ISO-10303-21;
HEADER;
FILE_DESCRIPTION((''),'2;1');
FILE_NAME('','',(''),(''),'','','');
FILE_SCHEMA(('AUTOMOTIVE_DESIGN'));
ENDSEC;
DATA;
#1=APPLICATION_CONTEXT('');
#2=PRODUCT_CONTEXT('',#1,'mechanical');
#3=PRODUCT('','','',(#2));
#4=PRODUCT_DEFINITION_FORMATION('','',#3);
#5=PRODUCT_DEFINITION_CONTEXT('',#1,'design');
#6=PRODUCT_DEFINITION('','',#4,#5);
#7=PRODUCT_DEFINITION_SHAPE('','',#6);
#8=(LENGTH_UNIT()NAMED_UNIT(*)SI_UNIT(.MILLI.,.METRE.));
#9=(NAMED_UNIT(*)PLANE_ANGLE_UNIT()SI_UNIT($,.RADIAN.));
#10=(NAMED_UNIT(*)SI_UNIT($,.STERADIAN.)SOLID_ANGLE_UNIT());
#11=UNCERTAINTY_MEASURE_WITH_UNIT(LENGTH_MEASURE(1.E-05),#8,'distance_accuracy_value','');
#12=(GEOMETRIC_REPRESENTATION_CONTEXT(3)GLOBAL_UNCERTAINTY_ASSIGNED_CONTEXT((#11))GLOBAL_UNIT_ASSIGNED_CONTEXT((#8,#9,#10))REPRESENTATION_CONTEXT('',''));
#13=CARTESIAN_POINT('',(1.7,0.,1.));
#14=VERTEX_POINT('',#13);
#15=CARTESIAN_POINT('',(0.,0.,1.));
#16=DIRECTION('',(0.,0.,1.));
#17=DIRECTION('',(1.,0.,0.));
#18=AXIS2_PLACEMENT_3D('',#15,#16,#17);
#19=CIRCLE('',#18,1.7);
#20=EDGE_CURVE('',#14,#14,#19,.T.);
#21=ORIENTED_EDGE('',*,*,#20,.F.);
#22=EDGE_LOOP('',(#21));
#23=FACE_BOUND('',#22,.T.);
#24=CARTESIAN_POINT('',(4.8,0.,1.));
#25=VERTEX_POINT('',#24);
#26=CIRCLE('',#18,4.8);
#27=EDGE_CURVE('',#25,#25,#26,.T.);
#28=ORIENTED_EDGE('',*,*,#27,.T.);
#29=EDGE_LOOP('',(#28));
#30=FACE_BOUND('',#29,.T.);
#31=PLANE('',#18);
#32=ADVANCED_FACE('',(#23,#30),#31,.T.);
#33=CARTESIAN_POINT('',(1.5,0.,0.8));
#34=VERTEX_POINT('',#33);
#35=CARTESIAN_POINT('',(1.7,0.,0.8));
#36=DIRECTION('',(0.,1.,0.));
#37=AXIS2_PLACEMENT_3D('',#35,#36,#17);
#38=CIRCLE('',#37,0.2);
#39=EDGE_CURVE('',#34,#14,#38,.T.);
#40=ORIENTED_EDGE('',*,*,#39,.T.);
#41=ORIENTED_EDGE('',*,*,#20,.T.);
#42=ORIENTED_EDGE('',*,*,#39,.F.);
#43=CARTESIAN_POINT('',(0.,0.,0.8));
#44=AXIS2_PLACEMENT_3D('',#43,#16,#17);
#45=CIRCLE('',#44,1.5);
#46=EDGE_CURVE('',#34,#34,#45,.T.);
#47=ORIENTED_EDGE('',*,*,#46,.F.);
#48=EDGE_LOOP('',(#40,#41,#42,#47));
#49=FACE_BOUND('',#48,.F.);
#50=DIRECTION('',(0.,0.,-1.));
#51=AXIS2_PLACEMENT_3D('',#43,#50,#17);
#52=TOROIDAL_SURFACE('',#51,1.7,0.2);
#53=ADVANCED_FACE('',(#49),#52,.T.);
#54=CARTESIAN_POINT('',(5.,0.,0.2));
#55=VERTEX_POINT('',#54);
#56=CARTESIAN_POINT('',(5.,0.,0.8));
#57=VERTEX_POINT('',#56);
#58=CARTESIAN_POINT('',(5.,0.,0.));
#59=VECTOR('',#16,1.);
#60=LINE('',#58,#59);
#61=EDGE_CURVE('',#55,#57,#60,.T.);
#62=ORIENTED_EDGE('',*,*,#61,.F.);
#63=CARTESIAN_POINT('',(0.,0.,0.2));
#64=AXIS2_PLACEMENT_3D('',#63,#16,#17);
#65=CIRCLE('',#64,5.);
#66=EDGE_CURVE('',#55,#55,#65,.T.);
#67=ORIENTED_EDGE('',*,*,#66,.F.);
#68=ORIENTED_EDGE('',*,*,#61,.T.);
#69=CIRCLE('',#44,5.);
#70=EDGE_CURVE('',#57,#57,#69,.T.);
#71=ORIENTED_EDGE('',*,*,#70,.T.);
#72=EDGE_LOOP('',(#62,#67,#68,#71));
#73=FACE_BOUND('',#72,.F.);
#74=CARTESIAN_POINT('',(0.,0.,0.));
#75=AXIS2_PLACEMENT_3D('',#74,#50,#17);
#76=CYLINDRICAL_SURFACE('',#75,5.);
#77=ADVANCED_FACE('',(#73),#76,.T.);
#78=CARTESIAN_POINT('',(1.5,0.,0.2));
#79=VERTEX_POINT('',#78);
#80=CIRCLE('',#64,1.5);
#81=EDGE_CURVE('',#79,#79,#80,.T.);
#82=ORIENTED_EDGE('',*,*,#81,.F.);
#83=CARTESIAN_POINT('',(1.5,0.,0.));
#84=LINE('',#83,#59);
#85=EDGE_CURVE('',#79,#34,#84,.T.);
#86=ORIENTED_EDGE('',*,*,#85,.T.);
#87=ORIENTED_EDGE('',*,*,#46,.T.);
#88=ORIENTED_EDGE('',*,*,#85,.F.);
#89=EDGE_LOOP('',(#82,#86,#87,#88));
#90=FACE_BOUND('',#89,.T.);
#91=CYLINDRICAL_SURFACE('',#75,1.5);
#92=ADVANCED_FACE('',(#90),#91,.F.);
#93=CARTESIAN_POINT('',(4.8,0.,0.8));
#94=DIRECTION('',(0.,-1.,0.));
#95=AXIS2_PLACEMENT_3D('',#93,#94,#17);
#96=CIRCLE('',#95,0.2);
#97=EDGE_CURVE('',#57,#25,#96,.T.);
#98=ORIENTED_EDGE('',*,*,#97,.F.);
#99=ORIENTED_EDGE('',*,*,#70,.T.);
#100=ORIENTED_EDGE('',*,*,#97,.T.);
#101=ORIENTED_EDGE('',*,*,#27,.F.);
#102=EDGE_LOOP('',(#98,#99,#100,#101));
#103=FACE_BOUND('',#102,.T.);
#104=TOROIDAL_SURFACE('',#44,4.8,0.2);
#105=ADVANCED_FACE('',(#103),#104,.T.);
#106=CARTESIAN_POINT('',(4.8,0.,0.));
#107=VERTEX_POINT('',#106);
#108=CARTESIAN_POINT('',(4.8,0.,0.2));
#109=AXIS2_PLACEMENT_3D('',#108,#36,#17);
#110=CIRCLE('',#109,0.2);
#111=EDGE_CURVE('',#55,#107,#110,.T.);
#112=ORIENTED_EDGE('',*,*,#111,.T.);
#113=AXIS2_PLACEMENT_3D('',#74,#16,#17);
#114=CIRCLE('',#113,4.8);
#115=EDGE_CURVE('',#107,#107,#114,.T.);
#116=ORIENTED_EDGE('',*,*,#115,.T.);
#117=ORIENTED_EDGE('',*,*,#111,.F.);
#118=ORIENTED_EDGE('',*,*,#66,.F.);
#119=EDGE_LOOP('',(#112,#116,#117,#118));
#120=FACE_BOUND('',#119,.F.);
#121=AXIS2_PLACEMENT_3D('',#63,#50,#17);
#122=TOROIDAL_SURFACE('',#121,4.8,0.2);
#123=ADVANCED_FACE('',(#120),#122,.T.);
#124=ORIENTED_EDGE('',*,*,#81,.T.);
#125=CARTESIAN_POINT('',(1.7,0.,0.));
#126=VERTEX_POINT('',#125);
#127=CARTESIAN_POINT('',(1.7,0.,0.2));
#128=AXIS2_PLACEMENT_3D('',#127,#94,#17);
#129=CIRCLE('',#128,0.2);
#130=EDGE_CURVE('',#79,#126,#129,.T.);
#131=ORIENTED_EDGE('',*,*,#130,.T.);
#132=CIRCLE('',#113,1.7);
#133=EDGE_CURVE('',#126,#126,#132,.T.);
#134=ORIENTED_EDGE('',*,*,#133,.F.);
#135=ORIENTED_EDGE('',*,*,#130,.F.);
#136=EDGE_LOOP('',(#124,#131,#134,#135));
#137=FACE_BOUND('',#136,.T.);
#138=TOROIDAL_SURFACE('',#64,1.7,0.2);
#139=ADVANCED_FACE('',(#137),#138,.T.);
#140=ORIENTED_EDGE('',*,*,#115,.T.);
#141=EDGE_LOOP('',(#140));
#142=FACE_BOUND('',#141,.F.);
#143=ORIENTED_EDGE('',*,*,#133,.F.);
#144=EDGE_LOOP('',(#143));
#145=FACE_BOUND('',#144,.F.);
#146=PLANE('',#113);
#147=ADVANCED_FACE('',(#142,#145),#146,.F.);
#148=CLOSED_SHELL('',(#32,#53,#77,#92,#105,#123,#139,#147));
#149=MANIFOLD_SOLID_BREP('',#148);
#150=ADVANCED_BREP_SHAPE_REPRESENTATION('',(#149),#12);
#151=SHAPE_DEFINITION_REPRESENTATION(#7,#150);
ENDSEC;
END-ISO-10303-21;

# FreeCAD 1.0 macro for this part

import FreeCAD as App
import Part
import Sketcher

V = App.Vector


def edges_at(feature, points):
    """Names of the edges that pass closest to the given points."""
    edges = feature.Shape.Edges
    near = lambda p: min(range(len(edges)), key=lambda i: edges[i].distToShape(Part.Vertex(*p))[0])
    return sorted({f"Edge{near(p) + 1}" for p in points})

doc = App.newDocument("Part")
body = doc.addObject("PartDesign::Body", "Body")

# Sketch on XY plane
sketch1 = doc.addObject("Sketcher::SketchObject", "Sketch")
body.addObject(sketch1)
sketch1.AttachmentSupport = (doc.XY_Plane, [""])
sketch1.MapMode = "FlatFace"
sketch1.addGeometry(Part.Circle(V(0, 0, 0), V(0, 0, 1), 5), False)
sketch1.addGeometry(Part.Circle(V(0, 0, 0), V(0, 0, 1), 1.5), False)
sketch1.addConstraint(Sketcher.Constraint("Coincident", 0, 3, -1, 1))
sketch1.addConstraint(Sketcher.Constraint("Coincident", 1, 3, -1, 1))
sketch1.addConstraint(Sketcher.Constraint("Diameter", 0, 10.0))
sketch1.addConstraint(Sketcher.Constraint("Diameter", 1, 3.0))
pad1 = doc.addObject("PartDesign::Pad", "Pad")
body.addObject(pad1)
pad1.Profile = sketch1
pad1.Length = 1
doc.recompute()

fillet = doc.addObject("PartDesign::Fillet", "Fillet")
body.addObject(fillet)
fillet.Base = (pad1, edges_at(pad1, [
    (-5, 0, 1),
    (-1.5, 0, 1),
    (-5, 0, 0),
    (-1.5, 0, 0),
]))
fillet.Radius = 0.2

doc.recompute()
